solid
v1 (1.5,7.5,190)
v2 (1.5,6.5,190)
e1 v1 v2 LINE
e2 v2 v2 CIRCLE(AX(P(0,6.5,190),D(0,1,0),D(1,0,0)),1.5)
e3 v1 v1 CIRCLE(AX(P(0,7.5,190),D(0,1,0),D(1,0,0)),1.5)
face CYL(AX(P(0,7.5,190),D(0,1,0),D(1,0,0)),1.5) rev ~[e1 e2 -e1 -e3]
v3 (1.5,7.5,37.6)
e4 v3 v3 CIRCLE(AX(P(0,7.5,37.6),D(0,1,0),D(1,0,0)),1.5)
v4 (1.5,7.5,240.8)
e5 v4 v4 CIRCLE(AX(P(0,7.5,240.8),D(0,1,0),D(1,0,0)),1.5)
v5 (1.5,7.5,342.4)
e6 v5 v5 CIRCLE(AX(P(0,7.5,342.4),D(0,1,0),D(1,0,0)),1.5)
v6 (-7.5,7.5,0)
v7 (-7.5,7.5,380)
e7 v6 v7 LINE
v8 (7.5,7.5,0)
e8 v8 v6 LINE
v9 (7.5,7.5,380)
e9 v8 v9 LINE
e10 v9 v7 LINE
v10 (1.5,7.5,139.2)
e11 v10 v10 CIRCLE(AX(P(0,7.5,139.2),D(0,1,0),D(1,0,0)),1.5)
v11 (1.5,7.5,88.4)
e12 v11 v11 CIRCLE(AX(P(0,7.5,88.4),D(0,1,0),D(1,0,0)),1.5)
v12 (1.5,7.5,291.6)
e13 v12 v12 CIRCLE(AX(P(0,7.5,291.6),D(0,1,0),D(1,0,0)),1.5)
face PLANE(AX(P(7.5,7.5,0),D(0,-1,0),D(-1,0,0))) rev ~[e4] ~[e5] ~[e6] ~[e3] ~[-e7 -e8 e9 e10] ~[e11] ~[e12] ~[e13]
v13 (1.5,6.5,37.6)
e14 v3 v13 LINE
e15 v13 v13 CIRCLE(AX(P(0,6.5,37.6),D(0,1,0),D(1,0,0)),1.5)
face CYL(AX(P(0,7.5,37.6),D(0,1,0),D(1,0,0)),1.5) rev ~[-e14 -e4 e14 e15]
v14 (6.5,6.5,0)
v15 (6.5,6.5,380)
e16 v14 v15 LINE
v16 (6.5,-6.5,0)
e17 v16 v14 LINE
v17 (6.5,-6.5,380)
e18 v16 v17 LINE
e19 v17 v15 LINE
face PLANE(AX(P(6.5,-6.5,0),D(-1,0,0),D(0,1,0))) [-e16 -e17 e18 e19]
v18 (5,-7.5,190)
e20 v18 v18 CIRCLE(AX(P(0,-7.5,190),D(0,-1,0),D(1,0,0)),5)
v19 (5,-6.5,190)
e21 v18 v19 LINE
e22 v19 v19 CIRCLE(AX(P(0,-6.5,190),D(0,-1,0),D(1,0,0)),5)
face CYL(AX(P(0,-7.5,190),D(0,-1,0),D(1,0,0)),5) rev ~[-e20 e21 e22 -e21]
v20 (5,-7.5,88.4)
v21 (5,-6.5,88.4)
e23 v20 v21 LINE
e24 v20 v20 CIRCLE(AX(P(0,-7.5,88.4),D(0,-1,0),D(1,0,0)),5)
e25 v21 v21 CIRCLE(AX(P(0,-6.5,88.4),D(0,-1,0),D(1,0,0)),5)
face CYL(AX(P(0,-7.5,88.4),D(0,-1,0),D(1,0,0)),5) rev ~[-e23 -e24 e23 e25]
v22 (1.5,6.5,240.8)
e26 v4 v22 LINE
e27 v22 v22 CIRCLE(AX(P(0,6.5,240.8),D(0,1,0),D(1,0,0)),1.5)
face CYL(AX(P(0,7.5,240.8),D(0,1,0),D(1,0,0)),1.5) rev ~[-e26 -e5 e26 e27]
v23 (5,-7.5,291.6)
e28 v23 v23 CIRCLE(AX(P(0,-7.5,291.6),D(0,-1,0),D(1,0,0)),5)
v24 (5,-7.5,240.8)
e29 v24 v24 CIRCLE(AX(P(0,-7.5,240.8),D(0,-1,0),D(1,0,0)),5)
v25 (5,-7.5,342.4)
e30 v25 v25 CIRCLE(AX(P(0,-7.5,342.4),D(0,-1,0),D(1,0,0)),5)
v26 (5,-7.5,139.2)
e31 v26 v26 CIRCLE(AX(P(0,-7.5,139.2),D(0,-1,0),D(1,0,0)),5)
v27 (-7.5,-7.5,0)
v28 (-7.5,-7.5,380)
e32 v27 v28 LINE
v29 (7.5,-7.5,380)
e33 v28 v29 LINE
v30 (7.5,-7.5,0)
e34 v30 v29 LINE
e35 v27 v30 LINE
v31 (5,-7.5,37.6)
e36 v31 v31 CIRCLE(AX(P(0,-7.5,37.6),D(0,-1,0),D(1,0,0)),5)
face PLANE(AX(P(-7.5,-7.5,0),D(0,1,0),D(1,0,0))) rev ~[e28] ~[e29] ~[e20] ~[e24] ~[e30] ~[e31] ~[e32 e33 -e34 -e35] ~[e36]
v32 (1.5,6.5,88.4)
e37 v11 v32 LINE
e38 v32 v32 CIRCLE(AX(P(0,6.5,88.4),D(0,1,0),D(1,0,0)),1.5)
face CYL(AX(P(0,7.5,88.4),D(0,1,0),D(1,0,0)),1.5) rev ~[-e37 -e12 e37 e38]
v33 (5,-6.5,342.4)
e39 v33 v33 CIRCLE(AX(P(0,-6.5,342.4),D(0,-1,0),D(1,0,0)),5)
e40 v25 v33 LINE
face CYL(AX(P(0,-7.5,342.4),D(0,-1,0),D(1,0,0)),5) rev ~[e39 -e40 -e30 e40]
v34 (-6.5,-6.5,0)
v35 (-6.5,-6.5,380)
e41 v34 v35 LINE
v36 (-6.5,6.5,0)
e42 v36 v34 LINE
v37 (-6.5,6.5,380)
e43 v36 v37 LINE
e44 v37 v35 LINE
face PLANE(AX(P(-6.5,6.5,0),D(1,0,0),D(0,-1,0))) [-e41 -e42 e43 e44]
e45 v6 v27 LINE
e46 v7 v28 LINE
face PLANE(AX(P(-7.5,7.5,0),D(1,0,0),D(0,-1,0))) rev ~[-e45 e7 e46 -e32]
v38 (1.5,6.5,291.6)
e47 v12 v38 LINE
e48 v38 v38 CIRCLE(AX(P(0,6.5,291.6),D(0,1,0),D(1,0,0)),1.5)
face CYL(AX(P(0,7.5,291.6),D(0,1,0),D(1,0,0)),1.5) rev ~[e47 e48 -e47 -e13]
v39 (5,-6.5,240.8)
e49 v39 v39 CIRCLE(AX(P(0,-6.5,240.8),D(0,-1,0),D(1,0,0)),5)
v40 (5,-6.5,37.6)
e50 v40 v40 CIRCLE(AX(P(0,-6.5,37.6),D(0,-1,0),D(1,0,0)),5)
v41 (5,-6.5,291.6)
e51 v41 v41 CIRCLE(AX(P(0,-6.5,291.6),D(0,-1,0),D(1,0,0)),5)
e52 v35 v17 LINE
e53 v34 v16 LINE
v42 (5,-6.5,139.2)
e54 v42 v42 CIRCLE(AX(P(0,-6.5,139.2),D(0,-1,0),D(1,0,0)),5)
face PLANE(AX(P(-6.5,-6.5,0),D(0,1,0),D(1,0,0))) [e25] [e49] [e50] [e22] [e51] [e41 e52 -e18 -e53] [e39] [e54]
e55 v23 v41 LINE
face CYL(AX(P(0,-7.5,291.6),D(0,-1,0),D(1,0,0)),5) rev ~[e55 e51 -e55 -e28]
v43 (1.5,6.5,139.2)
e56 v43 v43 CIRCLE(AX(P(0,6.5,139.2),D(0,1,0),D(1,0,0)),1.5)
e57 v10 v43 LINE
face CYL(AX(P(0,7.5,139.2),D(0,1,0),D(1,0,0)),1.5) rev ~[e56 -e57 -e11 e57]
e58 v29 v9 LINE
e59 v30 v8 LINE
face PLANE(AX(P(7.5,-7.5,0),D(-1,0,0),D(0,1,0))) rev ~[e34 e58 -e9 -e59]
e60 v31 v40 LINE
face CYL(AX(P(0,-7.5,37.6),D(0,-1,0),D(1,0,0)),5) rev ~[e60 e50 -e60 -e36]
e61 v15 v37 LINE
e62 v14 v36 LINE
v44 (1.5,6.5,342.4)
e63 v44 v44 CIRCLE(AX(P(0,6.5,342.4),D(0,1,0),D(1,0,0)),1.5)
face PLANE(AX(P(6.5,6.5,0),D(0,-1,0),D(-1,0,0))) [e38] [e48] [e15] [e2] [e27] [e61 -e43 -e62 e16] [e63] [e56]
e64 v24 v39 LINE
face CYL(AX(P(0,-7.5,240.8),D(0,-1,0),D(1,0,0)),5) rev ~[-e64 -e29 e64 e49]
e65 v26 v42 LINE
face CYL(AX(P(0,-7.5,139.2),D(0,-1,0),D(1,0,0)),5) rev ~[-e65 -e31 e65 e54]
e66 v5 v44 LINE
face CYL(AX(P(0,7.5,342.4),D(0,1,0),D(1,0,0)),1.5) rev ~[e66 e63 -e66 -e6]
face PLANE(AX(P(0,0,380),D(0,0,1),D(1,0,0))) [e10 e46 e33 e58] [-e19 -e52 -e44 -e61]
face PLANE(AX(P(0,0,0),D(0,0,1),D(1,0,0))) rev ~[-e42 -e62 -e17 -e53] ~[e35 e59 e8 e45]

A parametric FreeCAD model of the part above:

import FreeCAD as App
import Part
import Sketcher

V = App.Vector


def add_polygon(sketch, points):
    """Adds a closed chain of lines whose ends are joined by coincident constraints."""
    first, n = sketch.GeometryCount, len(points)
    for a, b in zip(points, points[1:] + points[:1]):
        sketch.addGeometry(Part.LineSegment(App.Vector(*a, 0), App.Vector(*b, 0)), False)
    for i in range(n):
        sketch.addConstraint(Sketcher.Constraint("Coincident", first + i, 2, first + (i + 1) % n, 1))

doc = App.newDocument("Part")
body = doc.addObject("PartDesign::Body", "Body")

# Sketch on XY plane
sketch1 = body.newObject("Sketcher::SketchObject", "Sketch")
sketch1.AttachmentSupport = (doc.getObject("XY_Plane"), [""])
sketch1.MapMode = "FlatFace"
add_polygon(sketch1, [(-8, 8), (-8, -8), (8, -8), (8, 8)])  # lines 0-3
add_polygon(sketch1, [(6, -6), (-6, -6), (-6, 6), (6, 6)])  # lines 4-7
sketch1.addConstraint([
    Sketcher.Constraint("Vertical", 0),
    Sketcher.Constraint("Horizontal", 1),
    Sketcher.Constraint("Vertical", 2),
    Sketcher.Constraint("Horizontal", 3),
    Sketcher.Constraint("Horizontal", 4),
    Sketcher.Constraint("Vertical", 5),
    Sketcher.Constraint("Horizontal", 6),
    Sketcher.Constraint("Vertical", 7),
    Sketcher.Constraint("Symmetric", 0, 2, 2, 2, -1, 1),
    Sketcher.Constraint("Symmetric", 4, 2, 6, 2, -1, 1),
    Sketcher.Constraint("Equal", 3, 0),
    Sketcher.Constraint("Equal", 6, 5),
    Sketcher.Constraint("DistanceX", 1, 1, 1, 2, 15.0),
    Sketcher.Constraint("DistanceX", 4, 2, 4, 1, 13.0),
])
pad1 = body.newObject("PartDesign::Pad", "Pad")
pad1.Profile = sketch1
pad1.Length = 380

# Sketch on XZ plane
sketch2 = body.newObject("Sketcher::SketchObject", "Sketch001")
sketch2.AttachmentSupport = (doc.getObject("XZ_Plane"), [""])
sketch2.MapMode = "FlatFace"
sketch2.AttachmentOffset = App.Placement(V(0, 0, -7.5), App.Rotation())
sketch2.addGeometry(Part.Circle(V(0, 37.6, 0), V(0, 0, 1), 1.5), False)
sketch2.addConstraint([
    Sketcher.Constraint("PointOnObject", 0, 3, -2),
    Sketcher.Constraint("Diameter", 0, 3.0),
    Sketcher.Constraint("DistanceY", -1, 1, 0, 3, 37.6),
])
pocket1 = body.newObject("PartDesign::Pocket", "Pocket")
pocket1.Profile = sketch2
pocket1.Length = 1
pocket1.Reversed = True

# Sketch on XZ plane
sketch3 = body.newObject("Sketcher::SketchObject", "Sketch002")
sketch3.AttachmentSupport = (doc.getObject("XZ_Plane"), [""])
sketch3.MapMode = "FlatFace"
sketch3.AttachmentOffset = App.Placement(V(0, 0, 7.5), App.Rotation())
sketch3.addGeometry(Part.Circle(V(0, 38, 0), V(0, 0, 1), 5), False)
sketch3.addConstraint([
    Sketcher.Constraint("PointOnObject", 0, 3, -2),
    Sketcher.Constraint("Diameter", 0, 10.0),
    Sketcher.Constraint("DistanceY", -1, 1, 0, 3, 37.6),
])
pocket2 = body.newObject("PartDesign::Pocket", "Pocket001")
pocket2.Profile = sketch3
pocket2.Length = 1
doc.recompute()

linearpattern = body.newObject("PartDesign::LinearPattern", "LinearPattern")
linearpattern.Originals = [pocket1]
linearpattern.Direction = (doc.getObject("Z_Axis"), [""])
linearpattern.Mode = "offset"
linearpattern.Offset = 50.8
linearpattern.Occurrences = 7
body.Tip = linearpattern
doc.recompute()

linearpattern2 = body.newObject("PartDesign::LinearPattern", "LinearPattern001")
linearpattern2.Originals = [pocket2]
linearpattern2.Direction = (doc.getObject("Z_Axis"), [""])
linearpattern2.Mode = "offset"
linearpattern2.Offset = 50.8
linearpattern2.Occurrences = 7
body.Tip = linearpattern2

doc.recompute()
